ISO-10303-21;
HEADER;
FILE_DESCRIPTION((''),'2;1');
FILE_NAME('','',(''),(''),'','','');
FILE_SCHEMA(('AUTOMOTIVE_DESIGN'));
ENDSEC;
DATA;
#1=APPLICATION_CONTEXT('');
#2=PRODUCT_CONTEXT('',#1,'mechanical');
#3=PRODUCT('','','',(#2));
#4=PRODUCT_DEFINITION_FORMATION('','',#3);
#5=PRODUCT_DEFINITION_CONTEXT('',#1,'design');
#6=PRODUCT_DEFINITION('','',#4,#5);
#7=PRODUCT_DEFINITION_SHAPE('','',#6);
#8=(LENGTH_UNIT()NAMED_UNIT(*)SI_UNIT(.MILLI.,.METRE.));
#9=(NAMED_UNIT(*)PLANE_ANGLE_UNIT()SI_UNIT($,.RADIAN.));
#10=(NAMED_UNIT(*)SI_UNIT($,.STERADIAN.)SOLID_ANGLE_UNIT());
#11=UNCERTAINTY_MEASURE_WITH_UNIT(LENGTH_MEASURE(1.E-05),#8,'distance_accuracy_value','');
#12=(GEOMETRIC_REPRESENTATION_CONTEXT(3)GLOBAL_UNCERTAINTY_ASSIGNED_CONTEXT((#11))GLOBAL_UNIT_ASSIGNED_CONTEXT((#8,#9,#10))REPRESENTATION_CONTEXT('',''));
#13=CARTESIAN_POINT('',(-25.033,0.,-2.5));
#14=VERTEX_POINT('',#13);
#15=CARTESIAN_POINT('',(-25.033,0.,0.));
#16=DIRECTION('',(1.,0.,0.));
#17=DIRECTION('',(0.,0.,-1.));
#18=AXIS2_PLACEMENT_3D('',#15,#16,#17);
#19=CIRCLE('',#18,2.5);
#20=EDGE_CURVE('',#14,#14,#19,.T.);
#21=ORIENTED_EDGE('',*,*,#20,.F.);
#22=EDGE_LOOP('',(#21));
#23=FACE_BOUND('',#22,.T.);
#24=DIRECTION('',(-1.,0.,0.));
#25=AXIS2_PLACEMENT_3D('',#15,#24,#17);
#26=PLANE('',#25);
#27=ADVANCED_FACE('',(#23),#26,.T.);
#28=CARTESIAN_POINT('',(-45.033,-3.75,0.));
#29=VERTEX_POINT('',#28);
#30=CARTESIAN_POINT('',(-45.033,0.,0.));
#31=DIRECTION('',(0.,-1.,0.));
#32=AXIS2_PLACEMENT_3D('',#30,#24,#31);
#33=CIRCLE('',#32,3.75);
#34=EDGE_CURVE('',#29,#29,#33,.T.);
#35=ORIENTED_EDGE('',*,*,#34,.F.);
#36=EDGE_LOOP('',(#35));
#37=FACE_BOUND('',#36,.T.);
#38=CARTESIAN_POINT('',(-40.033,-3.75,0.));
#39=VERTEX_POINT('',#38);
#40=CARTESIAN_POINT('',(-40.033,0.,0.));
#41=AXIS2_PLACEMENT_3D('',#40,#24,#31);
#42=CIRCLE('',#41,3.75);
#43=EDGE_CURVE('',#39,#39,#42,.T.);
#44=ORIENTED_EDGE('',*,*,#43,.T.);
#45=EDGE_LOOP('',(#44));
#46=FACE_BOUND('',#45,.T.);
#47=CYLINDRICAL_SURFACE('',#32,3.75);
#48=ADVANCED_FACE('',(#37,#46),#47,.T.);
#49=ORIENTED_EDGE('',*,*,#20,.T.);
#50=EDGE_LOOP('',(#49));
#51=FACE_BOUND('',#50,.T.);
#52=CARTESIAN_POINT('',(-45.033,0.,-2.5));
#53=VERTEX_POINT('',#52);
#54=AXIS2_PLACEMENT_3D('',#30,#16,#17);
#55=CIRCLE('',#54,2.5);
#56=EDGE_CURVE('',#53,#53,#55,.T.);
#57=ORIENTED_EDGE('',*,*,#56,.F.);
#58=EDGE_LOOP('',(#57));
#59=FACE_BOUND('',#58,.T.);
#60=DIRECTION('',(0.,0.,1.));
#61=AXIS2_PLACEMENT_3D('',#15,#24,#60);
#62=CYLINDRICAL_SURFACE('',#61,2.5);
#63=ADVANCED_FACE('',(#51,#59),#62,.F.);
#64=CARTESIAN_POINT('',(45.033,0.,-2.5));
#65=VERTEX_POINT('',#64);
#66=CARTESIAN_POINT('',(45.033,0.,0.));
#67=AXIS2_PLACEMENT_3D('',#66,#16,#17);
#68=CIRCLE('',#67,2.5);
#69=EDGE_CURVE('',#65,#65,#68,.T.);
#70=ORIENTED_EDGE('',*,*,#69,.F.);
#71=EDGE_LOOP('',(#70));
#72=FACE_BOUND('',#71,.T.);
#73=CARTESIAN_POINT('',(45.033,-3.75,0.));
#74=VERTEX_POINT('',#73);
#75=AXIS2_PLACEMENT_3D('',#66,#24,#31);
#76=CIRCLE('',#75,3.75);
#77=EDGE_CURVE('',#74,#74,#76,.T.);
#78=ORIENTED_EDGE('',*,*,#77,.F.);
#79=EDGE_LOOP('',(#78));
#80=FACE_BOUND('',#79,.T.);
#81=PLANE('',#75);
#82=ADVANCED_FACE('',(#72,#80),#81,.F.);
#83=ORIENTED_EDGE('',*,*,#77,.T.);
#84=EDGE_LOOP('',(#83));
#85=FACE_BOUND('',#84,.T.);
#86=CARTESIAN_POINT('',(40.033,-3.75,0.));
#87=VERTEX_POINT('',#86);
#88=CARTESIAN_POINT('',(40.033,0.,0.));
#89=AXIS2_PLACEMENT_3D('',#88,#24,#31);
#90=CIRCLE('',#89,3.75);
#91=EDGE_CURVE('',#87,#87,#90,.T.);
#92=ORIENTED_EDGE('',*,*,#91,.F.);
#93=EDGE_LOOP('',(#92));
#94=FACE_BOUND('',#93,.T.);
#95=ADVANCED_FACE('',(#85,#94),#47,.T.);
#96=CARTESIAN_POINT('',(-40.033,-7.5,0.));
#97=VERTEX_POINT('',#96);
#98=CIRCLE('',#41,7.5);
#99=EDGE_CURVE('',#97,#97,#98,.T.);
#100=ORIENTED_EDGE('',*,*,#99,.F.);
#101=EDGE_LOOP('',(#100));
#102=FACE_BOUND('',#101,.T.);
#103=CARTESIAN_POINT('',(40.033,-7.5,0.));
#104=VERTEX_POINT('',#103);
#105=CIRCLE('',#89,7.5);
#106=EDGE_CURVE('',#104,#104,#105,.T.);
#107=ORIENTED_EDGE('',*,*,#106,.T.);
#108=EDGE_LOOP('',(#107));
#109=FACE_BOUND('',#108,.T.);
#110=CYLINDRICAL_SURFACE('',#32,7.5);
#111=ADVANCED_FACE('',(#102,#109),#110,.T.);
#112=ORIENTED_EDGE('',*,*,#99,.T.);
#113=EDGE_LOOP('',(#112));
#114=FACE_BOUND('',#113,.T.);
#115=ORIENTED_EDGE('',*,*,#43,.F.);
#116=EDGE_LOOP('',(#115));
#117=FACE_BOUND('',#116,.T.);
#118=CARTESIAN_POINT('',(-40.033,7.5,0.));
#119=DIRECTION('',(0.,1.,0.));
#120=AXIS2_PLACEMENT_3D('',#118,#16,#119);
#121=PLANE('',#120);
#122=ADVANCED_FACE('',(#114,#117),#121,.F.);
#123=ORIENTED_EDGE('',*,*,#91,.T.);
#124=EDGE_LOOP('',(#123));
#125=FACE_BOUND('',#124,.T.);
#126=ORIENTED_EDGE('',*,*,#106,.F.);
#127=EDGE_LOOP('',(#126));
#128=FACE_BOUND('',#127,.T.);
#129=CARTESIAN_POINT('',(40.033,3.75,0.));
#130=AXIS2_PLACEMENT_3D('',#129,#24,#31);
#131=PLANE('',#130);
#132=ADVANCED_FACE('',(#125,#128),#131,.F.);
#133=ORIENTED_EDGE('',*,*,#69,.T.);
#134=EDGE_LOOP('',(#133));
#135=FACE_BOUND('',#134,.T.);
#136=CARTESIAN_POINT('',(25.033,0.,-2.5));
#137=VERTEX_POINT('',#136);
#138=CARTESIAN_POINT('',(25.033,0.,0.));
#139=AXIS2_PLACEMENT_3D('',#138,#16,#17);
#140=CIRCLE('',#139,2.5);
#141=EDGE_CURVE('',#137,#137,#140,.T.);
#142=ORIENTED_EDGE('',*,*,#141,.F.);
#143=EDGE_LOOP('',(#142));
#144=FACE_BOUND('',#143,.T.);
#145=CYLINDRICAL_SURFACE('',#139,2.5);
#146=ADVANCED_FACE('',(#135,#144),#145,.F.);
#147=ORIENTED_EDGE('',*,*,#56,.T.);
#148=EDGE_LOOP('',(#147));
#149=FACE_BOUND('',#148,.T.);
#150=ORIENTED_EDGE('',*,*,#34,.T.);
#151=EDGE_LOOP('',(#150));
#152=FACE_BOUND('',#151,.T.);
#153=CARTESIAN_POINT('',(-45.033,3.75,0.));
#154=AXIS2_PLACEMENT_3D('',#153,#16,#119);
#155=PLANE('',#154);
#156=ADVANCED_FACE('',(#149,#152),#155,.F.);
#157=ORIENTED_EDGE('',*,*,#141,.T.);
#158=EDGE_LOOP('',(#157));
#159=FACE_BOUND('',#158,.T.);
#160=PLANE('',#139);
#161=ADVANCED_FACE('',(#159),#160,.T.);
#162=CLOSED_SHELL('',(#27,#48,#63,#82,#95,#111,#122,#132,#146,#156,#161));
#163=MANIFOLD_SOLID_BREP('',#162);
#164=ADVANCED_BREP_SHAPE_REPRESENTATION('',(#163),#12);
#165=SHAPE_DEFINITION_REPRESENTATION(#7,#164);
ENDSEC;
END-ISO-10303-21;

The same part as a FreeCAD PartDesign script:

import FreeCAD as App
import Part
import Sketcher

V = App.Vector
Q = App.Units.Quantity

doc = App.newDocument("Part")
body = doc.addObject("PartDesign::Body", "Body")

# Sketch on XY plane
sketch1 = body.newObject("Sketcher::SketchObject", "Sketch")
sketch1.AttachmentSupport = (doc.getObject("XY_Plane"), [""])
sketch1.MapMode = "FlatFace"
sketch1.addGeometry(Part.LineSegment(V(-45, 0, 0), V(45, 0, 0)), False)
sketch1.addGeometry(Part.LineSegment(V(45, 0, 0), V(45, 3.8, 0)), False)
sketch1.addGeometry(Part.LineSegment(V(45, 3.8, 0), V(40, 3.8, 0)), False)
sketch1.addGeometry(Part.LineSegment(V(40, 3.8, 0), V(40, 7.5, 0)), False)
sketch1.addGeometry(Part.LineSegment(V(40, 7.5, 0), V(-40, 7.5, 0)), False)
sketch1.addGeometry(Part.LineSegment(V(-40, 7.5, 0), V(-40, 3.8, 0)), False)
sketch1.addGeometry(Part.LineSegment(V(-40, 3.8, 0), V(-45, 3.8, 0)), False)
sketch1.addGeometry(Part.LineSegment(V(-45, 3.8, 0), V(-45, 0, 0)), False)
sketch1.addConstraint(Sketcher.Constraint("Coincident", 0, 2, 1, 1))
sketch1.addConstraint(Sketcher.Constraint("Coincident", 1, 2, 2, 1))
sketch1.addConstraint(Sketcher.Constraint("Coincident", 2, 2, 3, 1))
sketch1.addConstraint(Sketcher.Constraint("Coincident", 3, 2, 4, 1))
sketch1.addConstraint(Sketcher.Constraint("Coincident", 4, 2, 5, 1))
sketch1.addConstraint(Sketcher.Constraint("Coincident", 5, 2, 6, 1))
sketch1.addConstraint(Sketcher.Constraint("Coincident", 6, 2, 7, 1))
sketch1.addConstraint(Sketcher.Constraint("Coincident", 7, 2, 0, 1))
sketch1.addConstraint(Sketcher.Constraint("Horizontal", 0))
sketch1.addConstraint(Sketcher.Constraint("Vertical", 1))
sketch1.addConstraint(Sketcher.Constraint("Horizontal", 2))
sketch1.addConstraint(Sketcher.Constraint("Vertical", 3))
sketch1.addConstraint(Sketcher.Constraint("Horizontal", 4))
sketch1.addConstraint(Sketcher.Constraint("Vertical", 5))
sketch1.addConstraint(Sketcher.Constraint("Horizontal", 6))
sketch1.addConstraint(Sketcher.Constraint("Vertical", 7))
sketch1.addConstraint(Sketcher.Constraint("Symmetric", 0, 2, 7, 2, -1, 1))
sketch1.addConstraint(Sketcher.Constraint("Symmetric", 2, 2, 5, 2, -2))
sketch1.addConstraint(Sketcher.Constraint("Equal", 1, 3))
sketch1.addConstraint(Sketcher.Constraint("DistanceX", 2, 2, 2, 1, Q("5 mm")))
sketch1.addConstraint(Sketcher.Constraint("DistanceY", 1, 1, 1, 2, Q("3.75 mm")))
sketch1.addConstraint(Sketcher.Constraint("DistanceX", 0, 1, 0, 2, Q("90.066 mm")))
revolution = body.newObject("PartDesign::Revolution", "Revolution")
revolution.Profile = sketch1
revolution.ReferenceAxis = (sketch1, ["H_Axis"])
revolution.Angle = 360

# Sketch on YZ plane
sketch2 = body.newObject("Sketcher::SketchObject", "Sketch001")
sketch2.AttachmentSupport = (doc.getObject("YZ_Plane"), [""])
sketch2.MapMode = "FlatFace"
sketch2.AttachmentOffset = App.Placement(V(0, 0, 45.033), App.Rotation())
sketch2.addGeometry(Part.Circle(V(0, 0, 0), V(0, 0, 1), 2.5), False)
sketch2.addConstraint(Sketcher.Constraint("Coincident", 0, 3, -1, 1))
sketch2.addConstraint(Sketcher.Constraint("Diameter", 0, Q("5 mm")))
pocket1 = body.newObject("PartDesign::Pocket", "Pocket")
pocket1.Profile = sketch2
pocket1.Length = 20
doc.recompute()

mirrored = body.newObject("PartDesign::Mirrored", "Mirrored")
mirrored.Originals = [pocket1]
mirrored.MirrorPlane = (doc.getObject("YZ_Plane"), [""])
body.Tip = mirrored

doc.recompute()
